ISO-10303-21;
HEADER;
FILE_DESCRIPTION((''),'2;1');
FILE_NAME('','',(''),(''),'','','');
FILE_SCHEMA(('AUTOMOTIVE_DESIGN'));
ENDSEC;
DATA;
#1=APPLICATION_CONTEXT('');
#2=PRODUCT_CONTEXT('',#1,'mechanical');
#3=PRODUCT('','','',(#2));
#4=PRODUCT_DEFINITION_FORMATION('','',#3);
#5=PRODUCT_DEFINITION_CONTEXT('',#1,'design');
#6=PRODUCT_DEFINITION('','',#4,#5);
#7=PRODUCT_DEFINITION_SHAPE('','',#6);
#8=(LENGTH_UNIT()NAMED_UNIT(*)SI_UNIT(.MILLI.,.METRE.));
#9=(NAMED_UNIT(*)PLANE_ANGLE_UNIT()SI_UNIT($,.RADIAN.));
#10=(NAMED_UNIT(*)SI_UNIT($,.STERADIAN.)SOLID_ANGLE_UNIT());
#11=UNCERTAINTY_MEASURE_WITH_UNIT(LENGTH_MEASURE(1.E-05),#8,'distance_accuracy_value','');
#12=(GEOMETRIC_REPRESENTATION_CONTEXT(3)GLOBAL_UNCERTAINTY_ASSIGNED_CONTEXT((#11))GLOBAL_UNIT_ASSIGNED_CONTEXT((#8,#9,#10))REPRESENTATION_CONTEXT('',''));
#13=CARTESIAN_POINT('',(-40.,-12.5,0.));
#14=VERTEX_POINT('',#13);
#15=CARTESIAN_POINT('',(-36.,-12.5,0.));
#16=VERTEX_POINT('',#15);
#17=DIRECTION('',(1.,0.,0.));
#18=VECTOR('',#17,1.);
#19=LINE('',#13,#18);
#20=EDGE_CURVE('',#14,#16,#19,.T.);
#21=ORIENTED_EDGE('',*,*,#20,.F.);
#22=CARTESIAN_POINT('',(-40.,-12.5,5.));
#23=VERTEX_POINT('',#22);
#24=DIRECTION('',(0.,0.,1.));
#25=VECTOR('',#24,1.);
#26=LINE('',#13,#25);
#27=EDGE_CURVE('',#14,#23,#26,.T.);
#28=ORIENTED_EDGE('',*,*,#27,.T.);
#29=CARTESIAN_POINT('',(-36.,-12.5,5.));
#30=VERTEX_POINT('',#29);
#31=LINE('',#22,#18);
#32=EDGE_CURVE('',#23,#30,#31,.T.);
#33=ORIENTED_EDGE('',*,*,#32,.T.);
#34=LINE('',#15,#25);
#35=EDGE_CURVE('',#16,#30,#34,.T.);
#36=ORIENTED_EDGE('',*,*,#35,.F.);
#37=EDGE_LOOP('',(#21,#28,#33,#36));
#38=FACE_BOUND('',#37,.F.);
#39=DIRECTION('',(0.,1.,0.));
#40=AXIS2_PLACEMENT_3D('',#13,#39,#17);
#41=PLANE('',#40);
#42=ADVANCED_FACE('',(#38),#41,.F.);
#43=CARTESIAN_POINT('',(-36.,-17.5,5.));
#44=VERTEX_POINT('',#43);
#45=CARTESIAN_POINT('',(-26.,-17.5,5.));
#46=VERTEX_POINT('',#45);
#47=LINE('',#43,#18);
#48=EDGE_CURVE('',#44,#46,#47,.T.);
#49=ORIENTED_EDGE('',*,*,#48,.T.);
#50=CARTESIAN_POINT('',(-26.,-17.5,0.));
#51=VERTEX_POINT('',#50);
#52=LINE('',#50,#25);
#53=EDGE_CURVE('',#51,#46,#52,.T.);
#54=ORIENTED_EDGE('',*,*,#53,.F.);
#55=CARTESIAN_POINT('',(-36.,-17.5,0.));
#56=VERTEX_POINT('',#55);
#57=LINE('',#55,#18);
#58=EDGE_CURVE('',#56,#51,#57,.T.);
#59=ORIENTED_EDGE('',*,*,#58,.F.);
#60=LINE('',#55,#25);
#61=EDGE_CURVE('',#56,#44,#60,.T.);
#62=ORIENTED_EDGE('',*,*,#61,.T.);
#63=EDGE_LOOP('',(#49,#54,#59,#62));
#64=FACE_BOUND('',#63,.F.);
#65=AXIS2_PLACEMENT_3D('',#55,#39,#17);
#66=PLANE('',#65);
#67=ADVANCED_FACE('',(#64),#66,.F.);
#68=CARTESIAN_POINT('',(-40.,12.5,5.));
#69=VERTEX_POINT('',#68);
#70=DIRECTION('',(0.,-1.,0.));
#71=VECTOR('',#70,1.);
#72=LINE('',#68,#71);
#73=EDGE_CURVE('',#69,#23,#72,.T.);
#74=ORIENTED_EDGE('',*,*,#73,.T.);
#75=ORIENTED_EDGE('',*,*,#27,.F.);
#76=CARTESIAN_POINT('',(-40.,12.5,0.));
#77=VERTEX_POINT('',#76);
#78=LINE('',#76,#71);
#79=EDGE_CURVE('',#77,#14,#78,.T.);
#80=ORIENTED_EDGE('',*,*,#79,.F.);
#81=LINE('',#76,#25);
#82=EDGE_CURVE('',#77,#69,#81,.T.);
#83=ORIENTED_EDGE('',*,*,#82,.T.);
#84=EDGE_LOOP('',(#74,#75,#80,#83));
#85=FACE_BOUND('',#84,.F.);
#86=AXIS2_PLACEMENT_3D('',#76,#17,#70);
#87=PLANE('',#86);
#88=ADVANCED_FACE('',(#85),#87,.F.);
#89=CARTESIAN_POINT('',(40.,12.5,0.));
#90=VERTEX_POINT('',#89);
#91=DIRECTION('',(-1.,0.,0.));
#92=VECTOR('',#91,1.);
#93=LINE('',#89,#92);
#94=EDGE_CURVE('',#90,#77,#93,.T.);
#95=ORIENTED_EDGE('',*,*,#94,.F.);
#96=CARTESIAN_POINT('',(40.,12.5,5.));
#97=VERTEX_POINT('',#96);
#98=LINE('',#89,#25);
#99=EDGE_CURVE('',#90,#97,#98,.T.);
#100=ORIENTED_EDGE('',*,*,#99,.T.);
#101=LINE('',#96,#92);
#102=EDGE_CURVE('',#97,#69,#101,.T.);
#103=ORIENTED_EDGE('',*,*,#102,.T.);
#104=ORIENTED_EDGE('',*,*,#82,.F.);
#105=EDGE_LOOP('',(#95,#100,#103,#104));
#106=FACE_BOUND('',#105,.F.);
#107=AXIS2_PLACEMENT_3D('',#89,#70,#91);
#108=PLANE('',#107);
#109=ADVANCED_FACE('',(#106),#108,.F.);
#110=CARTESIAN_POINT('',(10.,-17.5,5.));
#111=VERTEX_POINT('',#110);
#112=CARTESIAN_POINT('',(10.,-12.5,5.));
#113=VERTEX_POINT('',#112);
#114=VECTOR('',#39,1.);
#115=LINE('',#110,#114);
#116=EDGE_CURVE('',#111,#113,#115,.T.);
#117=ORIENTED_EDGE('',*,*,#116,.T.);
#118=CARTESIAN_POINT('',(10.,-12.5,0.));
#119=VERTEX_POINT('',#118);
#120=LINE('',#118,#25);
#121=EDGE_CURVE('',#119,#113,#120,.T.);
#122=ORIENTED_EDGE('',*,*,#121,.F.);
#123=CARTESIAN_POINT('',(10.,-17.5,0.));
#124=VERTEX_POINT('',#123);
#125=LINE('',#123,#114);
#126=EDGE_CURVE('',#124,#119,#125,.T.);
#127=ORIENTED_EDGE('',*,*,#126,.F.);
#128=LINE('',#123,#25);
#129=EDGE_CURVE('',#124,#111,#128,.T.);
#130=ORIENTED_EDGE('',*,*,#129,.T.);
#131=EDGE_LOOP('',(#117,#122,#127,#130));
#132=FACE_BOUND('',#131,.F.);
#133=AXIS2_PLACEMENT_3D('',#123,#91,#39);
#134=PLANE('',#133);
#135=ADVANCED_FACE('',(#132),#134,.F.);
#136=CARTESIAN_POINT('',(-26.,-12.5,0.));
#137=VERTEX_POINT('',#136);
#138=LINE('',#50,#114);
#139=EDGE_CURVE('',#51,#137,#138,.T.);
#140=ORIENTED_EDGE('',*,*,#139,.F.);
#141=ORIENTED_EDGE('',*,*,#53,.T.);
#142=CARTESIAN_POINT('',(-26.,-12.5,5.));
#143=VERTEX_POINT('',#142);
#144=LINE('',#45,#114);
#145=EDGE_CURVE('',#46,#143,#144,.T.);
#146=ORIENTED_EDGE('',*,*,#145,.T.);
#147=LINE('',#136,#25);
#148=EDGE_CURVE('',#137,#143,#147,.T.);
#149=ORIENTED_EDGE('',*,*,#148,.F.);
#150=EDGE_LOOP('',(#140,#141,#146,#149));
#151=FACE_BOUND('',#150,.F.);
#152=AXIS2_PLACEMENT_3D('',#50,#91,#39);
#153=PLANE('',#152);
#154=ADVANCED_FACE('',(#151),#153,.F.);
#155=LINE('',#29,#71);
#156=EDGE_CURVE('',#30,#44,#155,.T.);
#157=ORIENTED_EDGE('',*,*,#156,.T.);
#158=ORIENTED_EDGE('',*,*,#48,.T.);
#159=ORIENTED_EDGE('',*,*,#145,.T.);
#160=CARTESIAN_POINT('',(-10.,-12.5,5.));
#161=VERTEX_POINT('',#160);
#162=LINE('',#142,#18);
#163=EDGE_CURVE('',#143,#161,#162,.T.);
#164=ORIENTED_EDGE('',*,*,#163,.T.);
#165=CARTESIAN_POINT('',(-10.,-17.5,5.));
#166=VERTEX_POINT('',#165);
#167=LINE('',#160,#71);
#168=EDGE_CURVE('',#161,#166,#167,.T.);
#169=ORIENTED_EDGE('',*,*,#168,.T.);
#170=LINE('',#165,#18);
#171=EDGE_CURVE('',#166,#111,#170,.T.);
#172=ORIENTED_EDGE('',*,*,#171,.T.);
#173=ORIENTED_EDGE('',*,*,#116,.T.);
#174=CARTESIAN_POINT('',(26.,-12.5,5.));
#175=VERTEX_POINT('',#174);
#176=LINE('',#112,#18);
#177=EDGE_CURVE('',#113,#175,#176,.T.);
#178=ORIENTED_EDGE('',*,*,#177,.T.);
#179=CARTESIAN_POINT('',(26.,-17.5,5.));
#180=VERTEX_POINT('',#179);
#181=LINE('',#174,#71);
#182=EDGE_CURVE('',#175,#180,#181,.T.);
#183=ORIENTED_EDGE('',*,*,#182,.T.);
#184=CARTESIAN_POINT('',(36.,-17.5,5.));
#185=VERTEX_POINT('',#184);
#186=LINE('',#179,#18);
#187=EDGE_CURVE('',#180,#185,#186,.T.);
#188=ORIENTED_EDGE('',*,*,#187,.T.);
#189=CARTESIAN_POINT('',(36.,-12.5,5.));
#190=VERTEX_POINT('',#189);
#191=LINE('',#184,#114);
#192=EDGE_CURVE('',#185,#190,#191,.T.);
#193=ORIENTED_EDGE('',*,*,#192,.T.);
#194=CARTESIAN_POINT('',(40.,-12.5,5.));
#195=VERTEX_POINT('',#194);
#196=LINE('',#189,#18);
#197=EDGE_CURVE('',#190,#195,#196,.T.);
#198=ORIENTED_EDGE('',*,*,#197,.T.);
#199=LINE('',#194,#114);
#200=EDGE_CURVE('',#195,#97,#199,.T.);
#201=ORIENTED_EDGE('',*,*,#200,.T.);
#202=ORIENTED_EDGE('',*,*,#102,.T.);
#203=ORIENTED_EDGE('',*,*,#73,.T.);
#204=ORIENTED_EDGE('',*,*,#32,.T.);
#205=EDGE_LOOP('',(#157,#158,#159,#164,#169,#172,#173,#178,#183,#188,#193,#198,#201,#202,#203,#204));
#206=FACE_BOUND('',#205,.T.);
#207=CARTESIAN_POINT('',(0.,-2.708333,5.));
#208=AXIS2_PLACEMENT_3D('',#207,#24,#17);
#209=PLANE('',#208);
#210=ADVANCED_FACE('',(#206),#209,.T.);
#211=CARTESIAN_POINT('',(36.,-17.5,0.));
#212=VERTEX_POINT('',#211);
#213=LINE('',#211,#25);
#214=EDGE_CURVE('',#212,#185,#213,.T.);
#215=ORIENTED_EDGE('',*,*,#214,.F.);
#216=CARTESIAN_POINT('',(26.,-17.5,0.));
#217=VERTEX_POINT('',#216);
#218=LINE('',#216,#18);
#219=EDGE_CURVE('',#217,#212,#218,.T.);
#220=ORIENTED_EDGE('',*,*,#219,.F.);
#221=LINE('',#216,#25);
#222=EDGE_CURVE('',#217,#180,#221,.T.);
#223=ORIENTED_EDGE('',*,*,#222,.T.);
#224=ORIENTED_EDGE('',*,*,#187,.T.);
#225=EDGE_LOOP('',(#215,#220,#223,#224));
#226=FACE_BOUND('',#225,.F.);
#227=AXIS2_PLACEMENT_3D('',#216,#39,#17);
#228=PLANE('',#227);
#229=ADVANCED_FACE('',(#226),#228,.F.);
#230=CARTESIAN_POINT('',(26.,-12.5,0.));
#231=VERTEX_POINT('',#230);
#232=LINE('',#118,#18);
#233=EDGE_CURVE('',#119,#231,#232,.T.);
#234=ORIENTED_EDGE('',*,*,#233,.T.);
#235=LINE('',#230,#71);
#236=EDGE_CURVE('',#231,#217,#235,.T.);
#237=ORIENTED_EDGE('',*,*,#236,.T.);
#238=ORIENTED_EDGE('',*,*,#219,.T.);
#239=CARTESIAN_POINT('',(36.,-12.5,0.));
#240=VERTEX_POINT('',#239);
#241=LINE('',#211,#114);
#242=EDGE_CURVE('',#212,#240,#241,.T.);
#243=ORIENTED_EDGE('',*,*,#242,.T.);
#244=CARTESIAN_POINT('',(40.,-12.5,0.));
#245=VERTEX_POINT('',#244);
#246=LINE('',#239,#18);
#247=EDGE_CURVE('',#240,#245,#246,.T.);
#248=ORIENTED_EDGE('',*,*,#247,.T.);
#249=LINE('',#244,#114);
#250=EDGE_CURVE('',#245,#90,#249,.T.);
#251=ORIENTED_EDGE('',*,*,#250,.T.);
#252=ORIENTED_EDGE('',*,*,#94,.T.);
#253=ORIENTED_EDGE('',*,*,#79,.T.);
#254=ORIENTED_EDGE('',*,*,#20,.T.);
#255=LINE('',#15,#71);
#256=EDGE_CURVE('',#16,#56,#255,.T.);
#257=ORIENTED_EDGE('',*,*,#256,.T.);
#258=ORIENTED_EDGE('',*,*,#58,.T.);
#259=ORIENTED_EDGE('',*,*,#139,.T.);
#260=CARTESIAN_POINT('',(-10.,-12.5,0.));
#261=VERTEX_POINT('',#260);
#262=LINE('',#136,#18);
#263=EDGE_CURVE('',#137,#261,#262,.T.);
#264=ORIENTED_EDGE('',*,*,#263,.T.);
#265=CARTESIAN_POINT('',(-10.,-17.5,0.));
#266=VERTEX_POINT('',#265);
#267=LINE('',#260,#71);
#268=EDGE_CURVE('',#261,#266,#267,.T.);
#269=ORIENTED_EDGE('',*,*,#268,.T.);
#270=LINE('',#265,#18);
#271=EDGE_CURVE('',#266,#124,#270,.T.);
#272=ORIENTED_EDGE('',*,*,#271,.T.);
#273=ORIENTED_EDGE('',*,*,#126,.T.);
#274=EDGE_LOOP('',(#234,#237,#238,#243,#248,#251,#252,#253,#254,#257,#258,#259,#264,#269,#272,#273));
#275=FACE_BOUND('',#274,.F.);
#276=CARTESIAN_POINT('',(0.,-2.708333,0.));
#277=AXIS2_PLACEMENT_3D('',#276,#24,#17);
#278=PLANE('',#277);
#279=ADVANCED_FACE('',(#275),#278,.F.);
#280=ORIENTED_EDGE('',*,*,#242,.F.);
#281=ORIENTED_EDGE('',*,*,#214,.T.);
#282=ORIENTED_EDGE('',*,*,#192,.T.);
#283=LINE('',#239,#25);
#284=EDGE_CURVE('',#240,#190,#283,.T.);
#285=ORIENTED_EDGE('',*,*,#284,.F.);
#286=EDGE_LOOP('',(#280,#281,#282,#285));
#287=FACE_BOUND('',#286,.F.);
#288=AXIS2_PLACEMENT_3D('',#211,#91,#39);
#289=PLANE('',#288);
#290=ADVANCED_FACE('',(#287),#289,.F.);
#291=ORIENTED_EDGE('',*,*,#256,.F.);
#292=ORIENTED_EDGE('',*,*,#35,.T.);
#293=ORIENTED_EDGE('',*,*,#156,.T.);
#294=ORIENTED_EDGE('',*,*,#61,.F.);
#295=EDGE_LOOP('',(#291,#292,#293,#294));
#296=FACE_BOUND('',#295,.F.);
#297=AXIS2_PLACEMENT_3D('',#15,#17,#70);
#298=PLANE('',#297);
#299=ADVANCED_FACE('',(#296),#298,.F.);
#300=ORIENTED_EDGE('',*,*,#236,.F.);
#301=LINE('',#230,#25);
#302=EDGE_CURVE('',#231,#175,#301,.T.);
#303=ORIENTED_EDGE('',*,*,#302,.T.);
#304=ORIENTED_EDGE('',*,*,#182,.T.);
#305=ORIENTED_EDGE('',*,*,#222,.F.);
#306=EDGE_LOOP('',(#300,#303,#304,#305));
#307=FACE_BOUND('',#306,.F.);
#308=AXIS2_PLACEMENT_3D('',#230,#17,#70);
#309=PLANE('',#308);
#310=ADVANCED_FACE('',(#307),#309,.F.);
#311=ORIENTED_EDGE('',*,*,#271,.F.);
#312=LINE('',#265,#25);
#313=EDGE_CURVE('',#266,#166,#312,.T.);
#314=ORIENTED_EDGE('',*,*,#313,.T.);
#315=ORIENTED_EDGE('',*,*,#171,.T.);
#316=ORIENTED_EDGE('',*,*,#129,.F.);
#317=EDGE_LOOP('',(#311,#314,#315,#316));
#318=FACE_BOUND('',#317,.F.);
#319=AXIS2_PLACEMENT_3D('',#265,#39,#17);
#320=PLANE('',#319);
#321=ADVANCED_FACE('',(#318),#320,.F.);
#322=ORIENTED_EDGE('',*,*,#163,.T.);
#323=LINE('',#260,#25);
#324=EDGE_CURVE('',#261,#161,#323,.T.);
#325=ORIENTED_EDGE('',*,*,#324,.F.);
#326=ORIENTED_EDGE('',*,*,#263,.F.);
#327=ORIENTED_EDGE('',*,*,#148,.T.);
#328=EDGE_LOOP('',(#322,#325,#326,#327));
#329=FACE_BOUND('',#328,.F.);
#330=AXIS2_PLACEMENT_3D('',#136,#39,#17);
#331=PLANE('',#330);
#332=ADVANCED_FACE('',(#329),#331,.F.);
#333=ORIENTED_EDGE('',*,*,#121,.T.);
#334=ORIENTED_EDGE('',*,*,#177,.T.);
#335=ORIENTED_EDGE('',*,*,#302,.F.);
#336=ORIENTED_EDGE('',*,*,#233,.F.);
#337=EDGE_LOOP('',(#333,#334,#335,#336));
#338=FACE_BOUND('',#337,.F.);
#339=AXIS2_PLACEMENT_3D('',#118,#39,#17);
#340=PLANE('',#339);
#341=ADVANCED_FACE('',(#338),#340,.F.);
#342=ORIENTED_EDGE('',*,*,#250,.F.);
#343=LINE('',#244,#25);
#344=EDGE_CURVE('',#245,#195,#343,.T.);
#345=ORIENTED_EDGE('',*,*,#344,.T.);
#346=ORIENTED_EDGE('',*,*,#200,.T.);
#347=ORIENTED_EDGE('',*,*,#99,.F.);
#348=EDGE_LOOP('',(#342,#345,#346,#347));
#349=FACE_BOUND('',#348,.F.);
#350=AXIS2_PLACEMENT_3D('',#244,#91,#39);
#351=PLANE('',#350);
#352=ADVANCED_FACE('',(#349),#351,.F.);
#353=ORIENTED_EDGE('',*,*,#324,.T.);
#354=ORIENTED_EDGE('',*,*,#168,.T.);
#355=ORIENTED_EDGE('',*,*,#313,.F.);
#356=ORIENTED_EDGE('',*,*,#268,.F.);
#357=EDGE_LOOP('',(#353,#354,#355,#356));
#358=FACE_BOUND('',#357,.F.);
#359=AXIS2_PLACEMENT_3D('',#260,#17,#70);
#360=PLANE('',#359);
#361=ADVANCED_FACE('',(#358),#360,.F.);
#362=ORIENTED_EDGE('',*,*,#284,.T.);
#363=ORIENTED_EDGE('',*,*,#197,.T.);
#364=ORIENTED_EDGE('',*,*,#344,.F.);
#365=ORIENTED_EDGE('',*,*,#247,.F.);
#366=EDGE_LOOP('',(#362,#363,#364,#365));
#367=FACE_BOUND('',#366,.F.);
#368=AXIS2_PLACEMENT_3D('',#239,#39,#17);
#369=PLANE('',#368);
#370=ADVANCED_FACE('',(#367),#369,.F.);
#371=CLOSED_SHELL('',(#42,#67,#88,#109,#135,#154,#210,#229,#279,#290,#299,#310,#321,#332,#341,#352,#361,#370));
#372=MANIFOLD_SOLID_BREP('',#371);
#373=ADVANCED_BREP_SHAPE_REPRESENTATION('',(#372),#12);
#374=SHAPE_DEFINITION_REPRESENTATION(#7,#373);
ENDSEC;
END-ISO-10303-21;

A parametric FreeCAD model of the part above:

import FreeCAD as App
import Part
import Sketcher

V = App.Vector


def add_polygon(sketch, points):
    """Adds a closed chain of lines whose ends are joined by coincident constraints."""
    first, n = sketch.GeometryCount, len(points)
    for a, b in zip(points, points[1:] + points[:1]):
        sketch.addGeometry(Part.LineSegment(App.Vector(*a, 0), App.Vector(*b, 0)), False)
    for i in range(n):
        sketch.addConstraint(Sketcher.Constraint("Coincident", first + i, 2, first + (i + 1) % n, 1))

doc = App.newDocument("Part")
params = doc.addObject("Spreadsheet::Sheet", "Params")
for row, (alias, value) in enumerate([
    ("sketch1_width", "4 mm"),
    ("sketch1_width2", "80 mm"),
    ("sketch1_width3", "10 mm"),
    ("sketch1_width4", "16 mm"),
    ("sketch1_height", "25 mm"),
    ("pad1_length", "5 mm"),
], start=1):
    params.set(f"A{row}", alias)
    params.set(f"B{row}", "=" + value)
    params.setAlias(f"B{row}", alias)

body = doc.addObject("PartDesign::Body", "Body")

# Sketch on XY plane
sketch1 = body.newObject("Sketcher::SketchObject", "Sketch")
sketch1.AttachmentSupport = (doc.getObject("XY_Plane"), [""])
sketch1.MapMode = "FlatFace"
add_polygon(sketch1, [(36, -12.5), (40, -12.5), (40, 12.5), (-40, 12.5), (-40, -12.5), (-36, -12.5), (-36, -17.5), (-26, -17.5), (-26, -12.5), (-10, -12.5), (-10, -17.5), (10, -17.5), (10, -12.5), (26, -12.5), (26, -17.5), (36, -17.5)])  # lines 0-15
sketch1.addConstraint(Sketcher.Constraint("Horizontal", 0))
sketch1.addConstraint(Sketcher.Constraint("Vertical", 1))
sketch1.addConstraint(Sketcher.Constraint("Horizontal", 2))
sketch1.addConstraint(Sketcher.Constraint("Vertical", 3))
sketch1.addConstraint(Sketcher.Constraint("Horizontal", 4))
sketch1.addConstraint(Sketcher.Constraint("Vertical", 5))
sketch1.addConstraint(Sketcher.Constraint("Horizontal", 6))
sketch1.addConstraint(Sketcher.Constraint("Vertical", 7))
sketch1.addConstraint(Sketcher.Constraint("Horizontal", 8))
sketch1.addConstraint(Sketcher.Constraint("Vertical", 9))
sketch1.addConstraint(Sketcher.Constraint("Horizontal", 10))
sketch1.addConstraint(Sketcher.Constraint("Vertical", 11))
sketch1.addConstraint(Sketcher.Constraint("Horizontal", 12))
sketch1.addConstraint(Sketcher.Constraint("Vertical", 13))
sketch1.addConstraint(Sketcher.Constraint("Horizontal", 14))
sketch1.addConstraint(Sketcher.Constraint("Vertical", 15))
sketch1.addConstraint(Sketcher.Constraint("Symmetric", 0, 2, 2, 2, -1, 1))
sketch1.addConstraint(Sketcher.Constraint("Symmetric", 8, 2, 11, 2, -2))
sketch1.addConstraint(Sketcher.Constraint("Symmetric", 6, 2, 13, 2, -2))
sketch1.addConstraint(Sketcher.Constraint("Symmetric", 4, 2, 15, 2, -2))
sketch1.addConstraint(Sketcher.Constraint("Horizontal", 4, 2, 7, 2))
sketch1.addConstraint(Sketcher.Constraint("Horizontal", 6, 2, 9, 2))
sketch1.addConstraint(Sketcher.Constraint("DistanceX", 0, 1, 0, 2, 4.0))
sketch1.addConstraint(Sketcher.Constraint("DistanceX", 2, 2, 2, 1, 80.0))
sketch1.addConstraint(Sketcher.Constraint("DistanceX", 6, 1, 6, 2, 10.0))
sketch1.addConstraint(Sketcher.Constraint("DistanceX", 8, 1, 8, 2, 16.0))
sketch1.addConstraint(Sketcher.Constraint("DistanceY", 1, 1, 1, 2, 25.0))
sketch1.addConstraint(Sketcher.Constraint("DistanceY", 5, 2, 5, 1, 5.0))
sketch1.setExpression("Constraints[38]", "Params.sketch1_width")
sketch1.setExpression("Constraints[39]", "Params.sketch1_width2")
sketch1.setExpression("Constraints[40]", "Params.sketch1_width3")
sketch1.setExpression("Constraints[41]", "Params.sketch1_width4")
sketch1.setExpression("Constraints[42]", "Params.sketch1_height")
pad1 = body.newObject("PartDesign::Pad", "Pad")
pad1.Profile = sketch1
pad1.setExpression("Length", "Params.pad1_length")

doc.recompute()
